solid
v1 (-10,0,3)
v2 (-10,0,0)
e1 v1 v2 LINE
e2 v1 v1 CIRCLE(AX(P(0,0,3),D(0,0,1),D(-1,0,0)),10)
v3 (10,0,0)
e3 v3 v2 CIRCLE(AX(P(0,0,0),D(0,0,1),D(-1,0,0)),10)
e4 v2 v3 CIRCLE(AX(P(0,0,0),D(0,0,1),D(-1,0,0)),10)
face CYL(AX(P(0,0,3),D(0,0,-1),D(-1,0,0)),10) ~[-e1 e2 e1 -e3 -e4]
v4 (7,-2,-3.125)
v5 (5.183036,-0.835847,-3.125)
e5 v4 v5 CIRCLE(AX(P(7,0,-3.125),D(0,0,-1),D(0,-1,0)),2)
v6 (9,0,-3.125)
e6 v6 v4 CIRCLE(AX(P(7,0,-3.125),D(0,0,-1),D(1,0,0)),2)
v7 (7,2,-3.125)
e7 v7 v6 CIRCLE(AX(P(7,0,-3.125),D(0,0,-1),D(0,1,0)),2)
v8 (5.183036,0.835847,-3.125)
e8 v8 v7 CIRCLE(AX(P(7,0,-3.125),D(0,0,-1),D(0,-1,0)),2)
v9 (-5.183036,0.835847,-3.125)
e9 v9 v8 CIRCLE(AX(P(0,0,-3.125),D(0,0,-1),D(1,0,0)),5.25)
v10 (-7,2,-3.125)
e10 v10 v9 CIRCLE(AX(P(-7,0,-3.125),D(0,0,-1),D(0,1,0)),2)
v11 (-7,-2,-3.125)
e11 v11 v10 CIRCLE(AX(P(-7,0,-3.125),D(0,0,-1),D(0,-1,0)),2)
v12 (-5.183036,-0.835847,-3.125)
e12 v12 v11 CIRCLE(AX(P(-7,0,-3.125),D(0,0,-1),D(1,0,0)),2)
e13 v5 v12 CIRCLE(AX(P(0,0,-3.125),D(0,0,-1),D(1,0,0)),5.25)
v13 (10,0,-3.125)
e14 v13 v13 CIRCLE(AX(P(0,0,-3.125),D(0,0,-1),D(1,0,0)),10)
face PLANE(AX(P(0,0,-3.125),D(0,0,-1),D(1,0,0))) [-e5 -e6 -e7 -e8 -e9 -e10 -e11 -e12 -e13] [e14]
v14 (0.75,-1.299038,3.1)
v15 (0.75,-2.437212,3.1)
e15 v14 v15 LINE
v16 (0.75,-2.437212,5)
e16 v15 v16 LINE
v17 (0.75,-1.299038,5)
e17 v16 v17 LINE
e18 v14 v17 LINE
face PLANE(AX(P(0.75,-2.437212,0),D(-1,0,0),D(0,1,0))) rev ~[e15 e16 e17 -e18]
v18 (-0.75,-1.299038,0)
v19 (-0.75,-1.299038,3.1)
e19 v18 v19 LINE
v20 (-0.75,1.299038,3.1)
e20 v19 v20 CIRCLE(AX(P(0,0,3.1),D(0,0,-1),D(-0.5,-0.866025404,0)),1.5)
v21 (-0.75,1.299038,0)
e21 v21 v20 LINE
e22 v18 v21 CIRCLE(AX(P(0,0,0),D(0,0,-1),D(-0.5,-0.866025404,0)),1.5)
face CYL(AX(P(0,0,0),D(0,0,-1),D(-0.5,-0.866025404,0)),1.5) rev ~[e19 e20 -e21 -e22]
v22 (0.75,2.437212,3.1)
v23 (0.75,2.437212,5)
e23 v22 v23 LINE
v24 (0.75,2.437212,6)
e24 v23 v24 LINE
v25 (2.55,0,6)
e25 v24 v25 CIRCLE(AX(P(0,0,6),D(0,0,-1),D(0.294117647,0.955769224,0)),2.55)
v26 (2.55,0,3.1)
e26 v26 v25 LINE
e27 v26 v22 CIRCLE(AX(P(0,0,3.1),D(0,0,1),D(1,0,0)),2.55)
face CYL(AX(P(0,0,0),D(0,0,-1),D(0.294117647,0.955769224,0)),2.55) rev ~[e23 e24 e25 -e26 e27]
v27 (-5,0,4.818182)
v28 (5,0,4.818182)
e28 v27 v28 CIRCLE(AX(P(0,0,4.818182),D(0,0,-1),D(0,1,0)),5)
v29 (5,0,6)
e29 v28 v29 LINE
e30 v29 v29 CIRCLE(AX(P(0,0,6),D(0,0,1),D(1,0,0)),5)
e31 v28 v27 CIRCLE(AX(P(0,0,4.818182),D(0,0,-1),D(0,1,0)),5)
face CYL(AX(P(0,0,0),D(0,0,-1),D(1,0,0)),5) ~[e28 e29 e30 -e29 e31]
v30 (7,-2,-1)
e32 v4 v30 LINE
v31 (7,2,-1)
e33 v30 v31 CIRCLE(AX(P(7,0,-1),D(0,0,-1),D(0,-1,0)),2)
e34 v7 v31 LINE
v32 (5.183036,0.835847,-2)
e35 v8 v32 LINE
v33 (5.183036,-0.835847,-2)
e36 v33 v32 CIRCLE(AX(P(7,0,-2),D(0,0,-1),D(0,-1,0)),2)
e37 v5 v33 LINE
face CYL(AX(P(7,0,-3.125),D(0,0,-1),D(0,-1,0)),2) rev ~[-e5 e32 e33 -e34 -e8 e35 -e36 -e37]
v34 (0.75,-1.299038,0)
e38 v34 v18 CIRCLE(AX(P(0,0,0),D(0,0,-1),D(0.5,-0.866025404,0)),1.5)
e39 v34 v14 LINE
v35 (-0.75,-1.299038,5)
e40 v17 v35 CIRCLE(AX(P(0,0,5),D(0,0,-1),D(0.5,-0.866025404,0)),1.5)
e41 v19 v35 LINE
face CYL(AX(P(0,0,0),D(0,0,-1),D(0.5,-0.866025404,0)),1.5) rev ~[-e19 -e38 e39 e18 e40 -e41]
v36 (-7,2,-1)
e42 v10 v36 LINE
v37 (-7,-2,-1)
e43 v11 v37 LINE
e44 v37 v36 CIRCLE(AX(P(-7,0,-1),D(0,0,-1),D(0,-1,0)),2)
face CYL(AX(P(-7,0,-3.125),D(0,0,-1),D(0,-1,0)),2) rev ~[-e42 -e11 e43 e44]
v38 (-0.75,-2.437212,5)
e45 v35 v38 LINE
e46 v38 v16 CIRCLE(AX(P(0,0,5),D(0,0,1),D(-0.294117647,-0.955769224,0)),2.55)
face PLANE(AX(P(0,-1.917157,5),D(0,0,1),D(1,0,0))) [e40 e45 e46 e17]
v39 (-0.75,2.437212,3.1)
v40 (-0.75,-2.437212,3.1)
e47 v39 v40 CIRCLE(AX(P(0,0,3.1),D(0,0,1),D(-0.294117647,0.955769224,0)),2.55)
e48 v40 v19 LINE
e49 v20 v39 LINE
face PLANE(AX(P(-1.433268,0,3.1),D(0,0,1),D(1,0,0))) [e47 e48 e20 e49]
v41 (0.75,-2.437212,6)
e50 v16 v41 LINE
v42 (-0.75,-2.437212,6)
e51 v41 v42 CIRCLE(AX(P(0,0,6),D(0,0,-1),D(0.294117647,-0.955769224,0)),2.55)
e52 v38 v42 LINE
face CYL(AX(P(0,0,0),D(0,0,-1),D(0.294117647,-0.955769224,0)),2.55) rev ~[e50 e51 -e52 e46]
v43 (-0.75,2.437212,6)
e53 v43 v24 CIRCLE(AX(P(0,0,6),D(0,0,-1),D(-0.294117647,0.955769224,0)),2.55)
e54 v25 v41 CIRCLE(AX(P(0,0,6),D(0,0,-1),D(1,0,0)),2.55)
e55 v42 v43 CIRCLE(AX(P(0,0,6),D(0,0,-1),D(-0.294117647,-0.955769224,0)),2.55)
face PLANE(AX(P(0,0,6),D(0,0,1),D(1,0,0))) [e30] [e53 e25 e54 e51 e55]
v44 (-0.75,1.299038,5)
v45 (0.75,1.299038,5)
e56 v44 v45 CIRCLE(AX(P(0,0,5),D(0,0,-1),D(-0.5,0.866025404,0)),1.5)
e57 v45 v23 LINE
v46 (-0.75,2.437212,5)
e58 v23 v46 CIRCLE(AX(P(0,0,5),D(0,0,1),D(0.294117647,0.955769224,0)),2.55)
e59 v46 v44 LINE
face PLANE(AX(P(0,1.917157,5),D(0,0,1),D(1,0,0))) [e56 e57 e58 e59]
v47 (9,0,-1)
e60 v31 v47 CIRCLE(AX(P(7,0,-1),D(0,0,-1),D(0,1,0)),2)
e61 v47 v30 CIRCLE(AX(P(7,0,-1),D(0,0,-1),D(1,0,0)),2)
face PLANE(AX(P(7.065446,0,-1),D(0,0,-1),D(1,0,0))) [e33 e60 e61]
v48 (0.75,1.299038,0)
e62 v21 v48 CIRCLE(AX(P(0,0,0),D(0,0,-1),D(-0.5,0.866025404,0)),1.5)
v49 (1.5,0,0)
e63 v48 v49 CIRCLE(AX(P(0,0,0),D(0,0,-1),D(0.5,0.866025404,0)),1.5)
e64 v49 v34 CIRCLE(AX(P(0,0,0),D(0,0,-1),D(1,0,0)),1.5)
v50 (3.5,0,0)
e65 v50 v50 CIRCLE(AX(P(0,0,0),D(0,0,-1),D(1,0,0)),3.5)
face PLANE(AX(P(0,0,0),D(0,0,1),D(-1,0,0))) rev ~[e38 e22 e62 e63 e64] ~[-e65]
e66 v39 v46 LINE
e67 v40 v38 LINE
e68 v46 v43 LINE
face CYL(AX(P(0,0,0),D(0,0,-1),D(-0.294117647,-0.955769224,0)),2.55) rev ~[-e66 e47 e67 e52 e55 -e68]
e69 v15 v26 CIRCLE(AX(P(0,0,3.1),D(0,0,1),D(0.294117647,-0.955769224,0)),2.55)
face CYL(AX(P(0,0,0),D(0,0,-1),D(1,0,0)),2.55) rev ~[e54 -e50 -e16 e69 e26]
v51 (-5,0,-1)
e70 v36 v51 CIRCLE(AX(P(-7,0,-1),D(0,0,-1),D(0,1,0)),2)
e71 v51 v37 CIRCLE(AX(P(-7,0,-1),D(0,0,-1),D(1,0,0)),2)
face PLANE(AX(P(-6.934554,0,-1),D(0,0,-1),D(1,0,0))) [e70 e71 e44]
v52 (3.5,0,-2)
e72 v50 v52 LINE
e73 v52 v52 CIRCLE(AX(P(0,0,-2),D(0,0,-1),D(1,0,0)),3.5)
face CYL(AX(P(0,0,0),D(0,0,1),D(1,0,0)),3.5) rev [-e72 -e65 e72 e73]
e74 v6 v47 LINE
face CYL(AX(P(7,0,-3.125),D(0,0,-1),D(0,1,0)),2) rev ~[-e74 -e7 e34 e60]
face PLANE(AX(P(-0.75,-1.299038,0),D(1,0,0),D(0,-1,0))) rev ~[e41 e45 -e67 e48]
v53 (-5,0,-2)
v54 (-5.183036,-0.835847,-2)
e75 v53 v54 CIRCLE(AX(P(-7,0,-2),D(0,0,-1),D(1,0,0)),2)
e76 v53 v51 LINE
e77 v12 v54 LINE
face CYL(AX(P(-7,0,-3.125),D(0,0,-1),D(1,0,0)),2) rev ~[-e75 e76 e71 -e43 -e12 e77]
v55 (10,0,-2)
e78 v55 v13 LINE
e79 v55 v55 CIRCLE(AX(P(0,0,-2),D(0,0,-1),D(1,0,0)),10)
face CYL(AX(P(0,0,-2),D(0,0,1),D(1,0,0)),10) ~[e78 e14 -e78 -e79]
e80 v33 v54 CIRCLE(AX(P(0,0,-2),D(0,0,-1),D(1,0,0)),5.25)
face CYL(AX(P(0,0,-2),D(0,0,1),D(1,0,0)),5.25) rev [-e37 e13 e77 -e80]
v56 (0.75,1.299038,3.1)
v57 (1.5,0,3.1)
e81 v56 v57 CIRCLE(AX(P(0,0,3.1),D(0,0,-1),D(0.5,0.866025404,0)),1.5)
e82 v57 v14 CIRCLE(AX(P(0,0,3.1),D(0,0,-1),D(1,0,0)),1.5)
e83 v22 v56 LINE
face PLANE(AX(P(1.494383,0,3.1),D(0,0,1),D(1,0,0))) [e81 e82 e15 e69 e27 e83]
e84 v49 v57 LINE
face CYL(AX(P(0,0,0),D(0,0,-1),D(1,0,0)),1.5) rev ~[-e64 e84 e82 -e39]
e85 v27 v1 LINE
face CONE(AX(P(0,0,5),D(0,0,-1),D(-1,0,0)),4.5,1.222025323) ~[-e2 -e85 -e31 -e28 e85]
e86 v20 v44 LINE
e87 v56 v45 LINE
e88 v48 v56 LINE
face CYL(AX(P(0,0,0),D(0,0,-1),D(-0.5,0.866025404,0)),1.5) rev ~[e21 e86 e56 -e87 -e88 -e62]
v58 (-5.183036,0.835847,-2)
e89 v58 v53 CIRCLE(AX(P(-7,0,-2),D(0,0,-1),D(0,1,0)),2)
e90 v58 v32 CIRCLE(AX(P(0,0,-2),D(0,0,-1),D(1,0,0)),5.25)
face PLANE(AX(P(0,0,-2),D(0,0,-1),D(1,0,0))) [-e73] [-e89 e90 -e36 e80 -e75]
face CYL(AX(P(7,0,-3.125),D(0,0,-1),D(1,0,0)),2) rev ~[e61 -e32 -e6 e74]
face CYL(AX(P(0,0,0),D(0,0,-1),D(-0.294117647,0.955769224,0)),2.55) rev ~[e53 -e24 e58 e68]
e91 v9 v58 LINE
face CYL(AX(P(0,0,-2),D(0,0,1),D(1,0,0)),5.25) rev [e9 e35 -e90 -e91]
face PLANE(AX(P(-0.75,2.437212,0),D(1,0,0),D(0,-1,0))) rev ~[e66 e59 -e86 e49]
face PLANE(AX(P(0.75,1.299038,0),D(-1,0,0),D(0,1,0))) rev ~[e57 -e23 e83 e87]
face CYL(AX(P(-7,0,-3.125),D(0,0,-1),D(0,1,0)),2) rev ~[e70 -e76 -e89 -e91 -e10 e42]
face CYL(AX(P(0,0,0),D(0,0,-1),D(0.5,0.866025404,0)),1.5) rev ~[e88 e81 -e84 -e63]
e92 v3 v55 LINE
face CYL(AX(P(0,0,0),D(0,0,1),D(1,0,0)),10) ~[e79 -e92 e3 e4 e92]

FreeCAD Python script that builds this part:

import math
import FreeCAD as App
import Part
import Sketcher
from FreeCAD import Vector
Q = App.Units.Quantity

doc = App.newDocument("Part")
body = doc.addObject("PartDesign::Body", "Body")

sketch1 = doc.addObject("Sketcher::SketchObject", "Sketch")
body.addObject(sketch1)
sketch1.AttachmentSupport = (doc.XY_Plane, [""])
sketch1.MapMode = "FlatFace"
sketch1.addGeometry(Part.Circle(Vector(0, 0, 0), Vector(0, 0, 1), 5), False)
sketch1.addGeometry(Part.ArcOfCircle(Part.Circle(Vector(0, 0, 0), Vector(0, 0, 1), 2.5), math.radians(73), math.radians(107)), False)
sketch1.addGeometry(Part.ArcOfCircle(Part.Circle(Vector(0, 0, 0), Vector(0, 0, 1), 2.5), math.radians(0), math.radians(73)), False)
sketch1.addGeometry(Part.ArcOfCircle(Part.Circle(Vector(0, 0, 0), Vector(0, 0, 1), 2.5), math.radians(-73), math.radians(0)), False)
sketch1.addGeometry(Part.ArcOfCircle(Part.Circle(Vector(0, 0, 0), Vector(0, 0, 1), 2.5), math.radians(-107), math.radians(-73)), False)
sketch1.addGeometry(Part.ArcOfCircle(Part.Circle(Vector(0, 0, 0), Vector(0, 0, 1), 2.5), math.radians(107), math.radians(253)), False)
sketch1.addConstraint(Sketcher.Constraint("Tangent", 1, 1, 2, 2))
sketch1.addConstraint(Sketcher.Constraint("Tangent", 2, 1, 3, 2))
sketch1.addConstraint(Sketcher.Constraint("Tangent", 3, 1, 4, 2))
sketch1.addConstraint(Sketcher.Constraint("Tangent", 4, 1, 5, 2))
sketch1.addConstraint(Sketcher.Constraint("Tangent", 5, 1, 1, 2))
sketch1.addConstraint(Sketcher.Constraint("Coincident", 0, 3, -1, 1))
sketch1.addConstraint(Sketcher.Constraint("Coincident", 1, 3, -1, 1))
sketch1.addConstraint(Sketcher.Constraint("Coincident", 3, 3, -1, 1))
sketch1.addConstraint(Sketcher.Constraint("PointOnObject", 2, 1, -1))
sketch1.addConstraint(Sketcher.Constraint("Horizontal", 3, 1, 4, 1))
sketch1.addConstraint(Sketcher.Constraint("Horizontal", 1, 1, 5, 1))
sketch1.addConstraint(Sketcher.Constraint("Vertical", 1, 1, 3, 1))
sketch1.addConstraint(Sketcher.Constraint("Diameter", 0, Q("10 mm")))
sketch1.addConstraint(Sketcher.Constraint("Radius", 1, Q("2.55 mm")))
sketch1.addConstraint(Sketcher.Constraint("DistanceX", 4, 1, 3, 1, Q("1.5 mm")))
pad1 = doc.addObject("PartDesign::Pad", "Pad")
body.addObject(pad1)
pad1.Profile = sketch1
pad1.Length = 6

sketch2 = doc.addObject("Sketcher::SketchObject", "Sketch001")
body.addObject(sketch2)
sketch2.AttachmentSupport = (doc.XY_Plane, [""])
sketch2.MapMode = "FlatFace"
sketch2.addGeometry(Part.LineSegment(Vector(0.8, 1.3, 0), Vector(0.8, 2.4, 0)), False)
sketch2.addGeometry(Part.ArcOfCircle(Part.Circle(Vector(0, 0, 0), Vector(0, 0, 1), 2.5), math.radians(73), math.radians(107)), False)
sketch2.addGeometry(Part.LineSegment(Vector(-0.8, 2.4, 0), Vector(-0.8, 1.3, 0)), False)
sketch2.addGeometry(Part.ArcOfCircle(Part.Circle(Vector(0, 0, 0), Vector(0, 0, 1), 1.5), math.radians(60), math.radians(120)), False)
sketch2.addGeometry(Part.ArcOfCircle(Part.Circle(Vector(0, 0, 0), Vector(0, 0, 1), 2.5), math.radians(-107), math.radians(-73)), False)
sketch2.addGeometry(Part.LineSegment(Vector(0.8, -2.4, 0), Vector(0.8, -1.3, 0)), False)
sketch2.addGeometry(Part.ArcOfCircle(Part.Circle(Vector(0, 0, 0), Vector(0, 0, 1), 1.5), math.radians(-120), math.radians(-60)), False)
sketch2.addGeometry(Part.LineSegment(Vector(-0.8, -1.3, 0), Vector(-0.8, -2.4, 0)), False)
sketch2.addConstraint(Sketcher.Constraint("Coincident", 0, 2, 1, 1))
sketch2.addConstraint(Sketcher.Constraint("Coincident", 1, 2, 2, 1))
sketch2.addConstraint(Sketcher.Constraint("Coincident", 2, 2, 3, 2))
sketch2.addConstraint(Sketcher.Constraint("Coincident", 3, 1, 0, 1))
sketch2.addConstraint(Sketcher.Constraint("Coincident", 4, 2, 5, 1))
sketch2.addConstraint(Sketcher.Constraint("Coincident", 5, 2, 6, 2))
sketch2.addConstraint(Sketcher.Constraint("Coincident", 6, 1, 7, 1))
sketch2.addConstraint(Sketcher.Constraint("Coincident", 7, 2, 4, 1))
sketch2.addConstraint(Sketcher.Constraint("Vertical", 0))
sketch2.addConstraint(Sketcher.Constraint("Vertical", 2))
sketch2.addConstraint(Sketcher.Constraint("Vertical", 5))
sketch2.addConstraint(Sketcher.Constraint("Vertical", 7))
sketch2.addConstraint(Sketcher.Constraint("Coincident", 1, 3, -1, 1))
sketch2.addConstraint(Sketcher.Constraint("Coincident", 3, 3, -1, 1))
sketch2.addConstraint(Sketcher.Constraint("Coincident", 4, 3, -1, 1))
sketch2.addConstraint(Sketcher.Constraint("Coincident", 6, 3, -1, 1))
sketch2.addConstraint(Sketcher.Constraint("Equal", 1, 4))
sketch2.addConstraint(Sketcher.Constraint("Equal", 3, 6))
sketch2.addConstraint(Sketcher.Constraint("Horizontal", 0, 2, 1, 2))
sketch2.addConstraint(Sketcher.Constraint("Horizontal", 5, 2, 6, 1))
sketch2.addConstraint(Sketcher.Constraint("Vertical", 3, 1, 4, 2))
sketch2.addConstraint(Sketcher.Constraint("Radius", 3, Q("1.5 mm")))
sketch2.addConstraint(Sketcher.Constraint("Radius", 1, Q("2.55 mm")))
sketch2.addConstraint(Sketcher.Constraint("DistanceX", 1, 2, 0, 2, Q("1.5 mm")))
pad2 = doc.addObject("PartDesign::Pad", "Pad001")
body.addObject(pad2)
pad2.Profile = sketch2
pad2.Length = 5

sketch3 = doc.addObject("Sketcher::SketchObject", "Sketch002")
body.addObject(sketch3)
sketch3.AttachmentSupport = (doc.XY_Plane, [""])
sketch3.MapMode = "FlatFace"
sketch3.addGeometry(Part.LineSegment(Vector(-0.8, 1.3, 0), Vector(-0.8, 2.4, 0)), False)
sketch3.addGeometry(Part.ArcOfCircle(Part.Circle(Vector(0, 0, 0), Vector(0, 0, 1), 2.5), math.radians(107), math.radians(253)), False)
sketch3.addGeometry(Part.LineSegment(Vector(-0.8, -2.4, 0), Vector(-0.8, -1.3, 0)), False)
sketch3.addGeometry(Part.ArcOfCircle(Part.Circle(Vector(0, 0, 0), Vector(0, 0, 1), 1.5), math.radians(120), math.radians(240)), False)
sketch3.addGeometry(Part.ArcOfCircle(Part.Circle(Vector(0, 0, 0), Vector(0, 0, 1), 2.5), math.radians(-73), math.radians(0)), False)
sketch3.addGeometry(Part.ArcOfCircle(Part.Circle(Vector(0, 0, 0), Vector(0, 0, 1), 2.5), math.radians(0), math.radians(73)), False)
sketch3.addGeometry(Part.LineSegment(Vector(0.8, 2.4, 0), Vector(0.8, 1.3, 0)), False)
sketch3.addGeometry(Part.ArcOfCircle(Part.Circle(Vector(0, 0, 0), Vector(0, 0, 1), 1.5), math.radians(0), math.radians(60)), False)
sketch3.addGeometry(Part.ArcOfCircle(Part.Circle(Vector(0, 0, 0), Vector(0, 0, 1), 1.5), math.radians(-60), math.radians(0)), False)
sketch3.addGeometry(Part.LineSegment(Vector(0.8, -1.3, 0), Vector(0.8, -2.4, 0)), False)
sketch3.addConstraint(Sketcher.Constraint("Coincident", 0, 2, 1, 1))
sketch3.addConstraint(Sketcher.Constraint("Coincident", 1, 2, 2, 1))
sketch3.addConstraint(Sketcher.Constraint("Coincident", 2, 2, 3, 2))
sketch3.addConstraint(Sketcher.Constraint("Coincident", 3, 1, 0, 1))
sketch3.addConstraint(Sketcher.Constraint("Tangent", 4, 2, 5, 1))
sketch3.addConstraint(Sketcher.Constraint("Coincident", 5, 2, 6, 1))
sketch3.addConstraint(Sketcher.Constraint("Coincident", 6, 2, 7, 2))
sketch3.addConstraint(Sketcher.Constraint("Tangent", 7, 1, 8, 2))
sketch3.addConstraint(Sketcher.Constraint("Coincident", 8, 1, 9, 1))
sketch3.addConstraint(Sketcher.Constraint("Coincident", 9, 2, 4, 1))
sketch3.addConstraint(Sketcher.Constraint("Vertical", 0))
sketch3.addConstraint(Sketcher.Constraint("Vertical", 2))
sketch3.addConstraint(Sketcher.Constraint("Vertical", 6))
sketch3.addConstraint(Sketcher.Constraint("Vertical", 9))
sketch3.addConstraint(Sketcher.Constraint("Coincident", 1, 3, -1, 1))
sketch3.addConstraint(Sketcher.Constraint("Coincident", 3, 3, -1, 1))
sketch3.addConstraint(Sketcher.Constraint("Coincident", 4, 3, -1, 1))
sketch3.addConstraint(Sketcher.Constraint("Coincident", 7, 3, -1, 1))
sketch3.addConstraint(Sketcher.Constraint("Equal", 1, 4))
sketch3.addConstraint(Sketcher.Constraint("Equal", 4, 5))
sketch3.addConstraint(Sketcher.Constraint("Equal", 3, 7))
sketch3.addConstraint(Sketcher.Constraint("Equal", 7, 8))
sketch3.addConstraint(Sketcher.Constraint("PointOnObject", 4, 2, -1))
sketch3.addConstraint(Sketcher.Constraint("PointOnObject", 7, 1, -1))
sketch3.addConstraint(Sketcher.Constraint("Horizontal", 0, 2, 5, 2))
sketch3.addConstraint(Sketcher.Constraint("Horizontal", 2, 2, 8, 1))
sketch3.addConstraint(Sketcher.Constraint("Vertical", 0, 2, 1, 2))
sketch3.addConstraint(Sketcher.Constraint("Radius", 3, Q("1.5 mm")))
sketch3.addConstraint(Sketcher.Constraint("Radius", 1, Q("2.55 mm")))
sketch3.addConstraint(Sketcher.Constraint("DistanceX", 0, 2, 5, 2, Q("1.5 mm")))
pad3 = doc.addObject("PartDesign::Pad", "Pad002")
body.addObject(pad3)
pad3.Profile = sketch3
pad3.Length = 3.1

sketch4 = doc.addObject("Sketcher::SketchObject", "Sketch003")
body.addObject(sketch4)
sketch4.AttachmentSupport = (doc.XZ_Plane, [""])
sketch4.MapMode = "FlatFace"
sketch4.addGeometry(Part.LineSegment(Vector(-10, 0, 0), Vector(-4, 0, 0)), False)
sketch4.addGeometry(Part.LineSegment(Vector(-4, 0, 0), Vector(-4, 5, 0)), False)
sketch4.addGeometry(Part.LineSegment(Vector(-4, 5, 0), Vector(-4.5, 5, 0)), False)
sketch4.addGeometry(Part.LineSegment(Vector(-4.5, 5, 0), Vector(-10, 3, 0)), False)
sketch4.addGeometry(Part.LineSegment(Vector(-10, 3, 0), Vector(-10, 0, 0)), False)
sketch4.addConstraint(Sketcher.Constraint("Coincident", 0, 2, 1, 1))
sketch4.addConstraint(Sketcher.Constraint("Coincident", 1, 2, 2, 1))
sketch4.addConstraint(Sketcher.Constraint("Coincident", 2, 2, 3, 1))
sketch4.addConstraint(Sketcher.Constraint("Coincident", 3, 2, 4, 1))
sketch4.addConstraint(Sketcher.Constraint("Coincident", 4, 2, 0, 1))
sketch4.addConstraint(Sketcher.Constraint("Horizontal", 0))
sketch4.addConstraint(Sketcher.Constraint("Vertical", 1))
sketch4.addConstraint(Sketcher.Constraint("Horizontal", 2))
sketch4.addConstraint(Sketcher.Constraint("Vertical", 4))
sketch4.addConstraint(Sketcher.Constraint("PointOnObject", 0, 2, -1))
sketch4.addConstraint(Sketcher.Constraint("DistanceX", 0, 1, 0, 2, Q("6 mm")))
sketch4.addConstraint(Sketcher.Constraint("DistanceY", 1, 1, 1, 2, Q("5 mm")))
sketch4.addConstraint(Sketcher.Constraint("DistanceY", 4, 2, 4, 1, Q("3 mm")))
sketch4.addConstraint(Sketcher.Constraint("DistanceX", 2, 2, 2, 1, Q("0.5 mm")))
sketch4.addConstraint(Sketcher.Constraint("DistanceX", 0, 2, -1, 1, Q("4 mm")))
revolution = doc.addObject("PartDesign::Revolution", "Revolution")
body.addObject(revolution)
revolution.Profile = sketch4
revolution.ReferenceAxis = (sketch4, ["V_Axis"])
revolution.Angle = 360

sketch5 = doc.addObject("Sketcher::SketchObject", "Sketch004")
body.addObject(sketch5)
sketch5.AttachmentSupport = (doc.XY_Plane, [""])
sketch5.MapMode = "FlatFace"
sketch5.addGeometry(Part.Circle(Vector(0, 0, 0), Vector(0, 0, 1), 10), False)
sketch5.addGeometry(Part.Circle(Vector(0, 0, 0), Vector(0, 0, 1), 3.5), False)
sketch5.addConstraint(Sketcher.Constraint("Coincident", 0, 3, -1, 1))
sketch5.addConstraint(Sketcher.Constraint("Coincident", 1, 3, -1, 1))
sketch5.addConstraint(Sketcher.Constraint("Diameter", 0, Q("20 mm")))
sketch5.addConstraint(Sketcher.Constraint("Diameter", 1, Q("7 mm")))
pad4 = doc.addObject("PartDesign::Pad", "Pad003")
body.addObject(pad4)
pad4.Profile = sketch5
pad4.Length = 2
pad4.Reversed = True

sketch6 = doc.addObject("Sketcher::SketchObject", "Sketch005")
body.addObject(sketch6)
sketch6.AttachmentSupport = (doc.XY_Plane, [""])
sketch6.MapMode = "FlatFace"
sketch6.AttachmentOffset = App.Placement(Vector(0, 0, -2), App.Rotation())
sketch6.addGeometry(Part.Circle(Vector(0, 0, 0), Vector(0, 0, 1), 10), False)
sketch6.addGeometry(Part.Circle(Vector(0, 0, 0), Vector(0, 0, 1), 5), False)
sketch6.addConstraint(Sketcher.Constraint("Coincident", 0, 3, -1, 1))
sketch6.addConstraint(Sketcher.Constraint("Coincident", 1, 3, -1, 1))
sketch6.addConstraint(Sketcher.Constraint("Diameter", 0, Q("20 mm")))
sketch6.addConstraint(Sketcher.Constraint("Diameter", 1, Q("10.5 mm")))
pad5 = doc.addObject("PartDesign::Pad", "Pad004")
body.addObject(pad5)
pad5.Profile = sketch6
pad5.Length = 1.125
pad5.Reversed = True

sketch7 = doc.addObject("Sketcher::SketchObject", "Sketch006")
body.addObject(sketch7)
sketch7.AttachmentSupport = (doc.XY_Plane, [""])
sketch7.MapMode = "FlatFace"
sketch7.AttachmentOffset = App.Placement(Vector(0, 0, -3.125), App.Rotation())
sketch7.addGeometry(Part.ArcOfCircle(Part.Circle(Vector(-7, 0, 0), Vector(0, 0, 1), 2), math.radians(0), math.radians(90)), False)
sketch7.addGeometry(Part.ArcOfCircle(Part.Circle(Vector(-7, 0, 0), Vector(0, 0, 1), 2), math.radians(-90), math.radians(0)), False)
sketch7.addGeometry(Part.ArcOfCircle(Part.Circle(Vector(-7, 0, 0), Vector(0, 0, 1), 2), math.radians(90), math.radians(270)), False)
sketch7.addGeometry(Part.ArcOfCircle(Part.Circle(Vector(7, 0, 0), Vector(0, 0, 1), 2), math.radians(0), math.radians(90)), False)
sketch7.addGeometry(Part.ArcOfCircle(Part.Circle(Vector(7, 0, 0), Vector(0, 0, 1), 2), math.radians(-90), math.radians(0)), False)
sketch7.addGeometry(Part.ArcOfCircle(Part.Circle(Vector(7, 0, 0), Vector(0, 0, 1), 2), math.radians(90), math.radians(270)), False)
sketch7.addConstraint(Sketcher.Constraint("Tangent", 0, 1, 1, 2))
sketch7.addConstraint(Sketcher.Constraint("Tangent", 1, 1, 2, 2))
sketch7.addConstraint(Sketcher.Constraint("Tangent", 2, 1, 0, 2))
sketch7.addConstraint(Sketcher.Constraint("Tangent", 3, 1, 4, 2))
sketch7.addConstraint(Sketcher.Constraint("Tangent", 4, 1, 5, 2))
sketch7.addConstraint(Sketcher.Constraint("Tangent", 5, 1, 3, 2))
sketch7.addConstraint(Sketcher.Constraint("Equal", 2, 3))
sketch7.addConstraint(Sketcher.Constraint("Symmetric", 0, 3, 3, 3, -1, 1))
sketch7.addConstraint(Sketcher.Constraint("Symmetric", 1, 1, 4, 1, -2))
sketch7.addConstraint(Sketcher.Constraint("PointOnObject", 0, 1, -1))
sketch7.addConstraint(Sketcher.Constraint("PointOnObject", 3, 1, -1))
sketch7.addConstraint(Sketcher.Constraint("Vertical", 2, 3, 1, 1))
sketch7.addConstraint(Sketcher.Constraint("Vertical", 1, 1, 2, 1))
sketch7.addConstraint(Sketcher.Constraint("Vertical", 4, 1, 5, 1))
sketch7.addConstraint(Sketcher.Constraint("Radius", 0, Q("2 mm")))
sketch7.addConstraint(Sketcher.Constraint("DistanceX", 0, 3, -1, 1, Q("7 mm")))
pocket1 = doc.addObject("PartDesign::Pocket", "Pocket")
body.addObject(pocket1)
pocket1.Profile = sketch7
pocket1.Length = 2.125
pocket1.Reversed = True

doc.recompute()
